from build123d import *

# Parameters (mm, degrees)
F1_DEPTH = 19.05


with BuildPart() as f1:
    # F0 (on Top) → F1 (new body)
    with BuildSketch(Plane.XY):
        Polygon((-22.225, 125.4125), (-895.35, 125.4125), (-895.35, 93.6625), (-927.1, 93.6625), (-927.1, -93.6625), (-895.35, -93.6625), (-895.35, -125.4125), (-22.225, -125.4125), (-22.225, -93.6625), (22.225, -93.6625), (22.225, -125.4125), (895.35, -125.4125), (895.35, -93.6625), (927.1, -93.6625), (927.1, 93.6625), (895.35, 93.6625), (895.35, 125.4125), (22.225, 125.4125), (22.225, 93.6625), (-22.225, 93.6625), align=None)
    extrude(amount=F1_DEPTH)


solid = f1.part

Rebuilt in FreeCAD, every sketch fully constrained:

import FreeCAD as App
import Part
import Sketcher

V = App.Vector
Q = App.Units.Quantity

doc = App.newDocument("Part")
body = doc.addObject("PartDesign::Body", "Body")

# Sketch on XY plane
sketch1 = doc.addObject("Sketcher::SketchObject", "Sketch")
body.addObject(sketch1)
sketch1.AttachmentSupport = (doc.XY_Plane, [""])
sketch1.MapMode = "FlatFace"
sketch1.addGeometry([
    Part.LineSegment(V(-22, 125, 0), V(-895, 125, 0)),  # 0
    Part.LineSegment(V(-895, 125, 0), V(-895, 94, 0)),  # 1
    Part.LineSegment(V(-895, 94, 0), V(-927, 94, 0)),  # 2
    Part.LineSegment(V(-927, 94, 0), V(-927, -94, 0)),  # 3
    Part.LineSegment(V(-927, -94, 0), V(-895, -94, 0)),  # 4
    Part.LineSegment(V(-895, -94, 0), V(-895, -125, 0)),  # 5
    Part.LineSegment(V(-895, -125, 0), V(-22, -125, 0)),  # 6
    Part.LineSegment(V(-22, -125, 0), V(-22, -94, 0)),  # 7
    Part.LineSegment(V(-22, -94, 0), V(22, -94, 0)),  # 8
    Part.LineSegment(V(22, -94, 0), V(22, -125, 0)),  # 9
    Part.LineSegment(V(22, -125, 0), V(895, -125, 0)),  # 10
    Part.LineSegment(V(895, -125, 0), V(895, -94, 0)),  # 11
    Part.LineSegment(V(895, -94, 0), V(927, -94, 0)),  # 12
    Part.LineSegment(V(927, -94, 0), V(927, 94, 0)),  # 13
    Part.LineSegment(V(927, 94, 0), V(895, 94, 0)),  # 14
    Part.LineSegment(V(895, 94, 0), V(895, 125, 0)),  # 15
    Part.LineSegment(V(895, 125, 0), V(22, 125, 0)),  # 16
    Part.LineSegment(V(22, 125, 0), V(22, 94, 0)),  # 17
    Part.LineSegment(V(22, 94, 0), V(-22, 94, 0)),  # 18
    Part.LineSegment(V(-22, 94, 0), V(-22, 125, 0)),  # 19
], False)
sketch1.addConstraint([
    Sketcher.Constraint("Coincident", 0, 2, 1, 1),
    Sketcher.Constraint("Coincident", 1, 2, 2, 1),
    Sketcher.Constraint("Coincident", 2, 2, 3, 1),
    Sketcher.Constraint("Coincident", 3, 2, 4, 1),
    Sketcher.Constraint("Coincident", 4, 2, 5, 1),
    Sketcher.Constraint("Coincident", 5, 2, 6, 1),
    Sketcher.Constraint("Coincident", 6, 2, 7, 1),
    Sketcher.Constraint("Coincident", 7, 2, 8, 1),
    Sketcher.Constraint("Coincident", 8, 2, 9, 1),
    Sketcher.Constraint("Coincident", 9, 2, 10, 1),
    Sketcher.Constraint("Coincident", 10, 2, 11, 1),
    Sketcher.Constraint("Coincident", 11, 2, 12, 1),
    Sketcher.Constraint("Coincident", 12, 2, 13, 1),
    Sketcher.Constraint("Coincident", 13, 2, 14, 1),
    Sketcher.Constraint("Coincident", 14, 2, 15, 1),
    Sketcher.Constraint("Coincident", 15, 2, 16, 1),
    Sketcher.Constraint("Coincident", 16, 2, 17, 1),
    Sketcher.Constraint("Coincident", 17, 2, 18, 1),
    Sketcher.Constraint("Coincident", 18, 2, 19, 1),
    Sketcher.Constraint("Coincident", 19, 2, 0, 1),
    Sketcher.Constraint("Horizontal", 0),
    Sketcher.Constraint("Vertical", 1),
    Sketcher.Constraint("Horizontal", 2),
    Sketcher.Constraint("Vertical", 3),
    Sketcher.Constraint("Horizontal", 4),
    Sketcher.Constraint("Vertical", 5),
    Sketcher.Constraint("Horizontal", 6),
    Sketcher.Constraint("Vertical", 7),
    Sketcher.Constraint("Horizontal", 8),
    Sketcher.Constraint("Vertical", 9),
    Sketcher.Constraint("Horizontal", 10),
    Sketcher.Constraint("Vertical", 11),
    Sketcher.Constraint("Horizontal", 12),
    Sketcher.Constraint("Vertical", 13),
    Sketcher.Constraint("Horizontal", 14),
    Sketcher.Constraint("Vertical", 15),
    Sketcher.Constraint("Horizontal", 16),
    Sketcher.Constraint("Vertical", 17),
    Sketcher.Constraint("Horizontal", 18),
    Sketcher.Constraint("Vertical", 19),
    Sketcher.Constraint("Symmetric", 0, 2, 10, 2, -1, 1),
    Sketcher.Constraint("Symmetric", 2, 2, 12, 2, -1, 1),
    Sketcher.Constraint("Symmetric", 4, 2, 14, 2, -1, 1),
    Sketcher.Constraint("Symmetric", 6, 2, 16, 2, -1, 1),
    Sketcher.Constraint("Symmetric", 8, 2, 18, 2, -1, 1),
    Sketcher.Constraint("Symmetric", 6, 2, 9, 2, -2),
    Sketcher.Constraint("Symmetric", 4, 2, 11, 2, -2),
    Sketcher.Constraint("Horizontal", 4, 2, 7, 2),
    Sketcher.Constraint("Equal", 14, 1),
    Sketcher.Constraint("DistanceX", 2, 2, 2, 1, Q("1.25 in")),
    Sketcher.Constraint("DistanceX", 8, 1, 8, 2, Q("1.75 in")),
    Sketcher.Constraint("DistanceX", 2, 2, -1, 1, Q("36.5 in")),
    Sketcher.Constraint("DistanceY", 3, 2, 3, 1, Q("7.375 in")),
])
pad1 = doc.addObject("PartDesign::Pad", "Pad")
body.addObject(pad1)
pad1.Profile = sketch1
pad1.Length = Q("0.75 in")

doc.recompute()
